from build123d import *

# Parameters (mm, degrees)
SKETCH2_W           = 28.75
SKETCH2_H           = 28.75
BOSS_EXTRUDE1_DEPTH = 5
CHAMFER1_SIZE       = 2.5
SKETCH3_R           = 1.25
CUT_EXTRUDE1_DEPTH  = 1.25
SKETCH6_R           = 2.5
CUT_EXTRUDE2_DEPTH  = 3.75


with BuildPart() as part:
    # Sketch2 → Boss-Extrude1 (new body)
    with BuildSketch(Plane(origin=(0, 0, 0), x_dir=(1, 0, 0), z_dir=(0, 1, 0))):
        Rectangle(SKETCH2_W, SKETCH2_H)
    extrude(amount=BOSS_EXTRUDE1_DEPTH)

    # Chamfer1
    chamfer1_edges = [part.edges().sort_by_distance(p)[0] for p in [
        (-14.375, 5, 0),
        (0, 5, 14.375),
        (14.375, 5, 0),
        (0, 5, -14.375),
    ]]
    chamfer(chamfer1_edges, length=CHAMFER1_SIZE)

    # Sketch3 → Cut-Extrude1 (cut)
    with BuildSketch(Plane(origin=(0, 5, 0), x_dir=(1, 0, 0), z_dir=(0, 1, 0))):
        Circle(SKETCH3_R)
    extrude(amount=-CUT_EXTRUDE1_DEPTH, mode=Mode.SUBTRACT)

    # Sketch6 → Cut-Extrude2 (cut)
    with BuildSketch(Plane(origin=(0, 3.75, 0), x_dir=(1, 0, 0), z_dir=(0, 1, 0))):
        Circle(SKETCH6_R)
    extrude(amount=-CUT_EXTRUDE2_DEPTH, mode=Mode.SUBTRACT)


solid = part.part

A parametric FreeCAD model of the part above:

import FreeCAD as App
import Part
import Sketcher

V = App.Vector


def edges_at(feature, points):
    """Names of the edges that pass closest to the given points."""
    edges = feature.Shape.Edges
    near = lambda p: min(range(len(edges)), key=lambda i: edges[i].distToShape(Part.Vertex(*p))[0])
    return sorted({f"Edge{near(p) + 1}" for p in points})


def add_polygon(sketch, points):
    """Adds a closed chain of lines whose ends are joined by coincident constraints."""
    first, n = sketch.GeometryCount, len(points)
    for a, b in zip(points, points[1:] + points[:1]):
        sketch.addGeometry(Part.LineSegment(App.Vector(*a, 0), App.Vector(*b, 0)), False)
    for i in range(n):
        sketch.addConstraint(Sketcher.Constraint("Coincident", first + i, 2, first + (i + 1) % n, 1))

doc = App.newDocument("Part")
body = doc.addObject("PartDesign::Body", "Body")

# Sketch on XZ plane
sketch1 = body.newObject("Sketcher::SketchObject", "Sketch")
sketch1.AttachmentSupport = (doc.getObject("XZ_Plane"), [""])
sketch1.MapMode = "FlatFace"
add_polygon(sketch1, [(-14, -14), (-14, 14), (14, 14), (14, -14)])  # lines 0-3
sketch1.addConstraint([
    Sketcher.Constraint("Vertical", 0),
    Sketcher.Constraint("Horizontal", 1),
    Sketcher.Constraint("Vertical", 2),
    Sketcher.Constraint("Horizontal", 3),
    Sketcher.Constraint("Symmetric", 0, 2, 2, 2, -1, 1),
    Sketcher.Constraint("Equal", 3, 0),
    Sketcher.Constraint("DistanceX", 1, 1, 1, 2, 28.75),
])
pad1 = body.newObject("PartDesign::Pad", "Pad")
pad1.Profile = sketch1
pad1.Length = 5
pad1.Reversed = True
doc.recompute()

chamfer = body.newObject("PartDesign::Chamfer", "Chamfer")
chamfer.Base = (pad1, edges_at(pad1, [
    (-14.375, 5, 0),
    (0, 5, 14.375),
    (14.375, 5, 0),
    (0, 5, -14.375),
]))
chamfer.Size = 2.5

# Sketch on XZ plane
sketch2 = body.newObject("Sketcher::SketchObject", "Sketch001")
sketch2.AttachmentSupport = (doc.getObject("XZ_Plane"), [""])
sketch2.MapMode = "FlatFace"
sketch2.AttachmentOffset = App.Placement(V(0, 0, -5), App.Rotation())
sketch2.addGeometry(Part.Circle(V(0, 0, 0), V(0, 0, 1), 1.2), False)
sketch2.addConstraint([
    Sketcher.Constraint("Coincident", 0, 3, -1, 1),
    Sketcher.Constraint("Diameter", 0, 2.5),
])
pocket1 = body.newObject("PartDesign::Pocket", "Pocket")
pocket1.Profile = sketch2
pocket1.Length = 1.25
pocket1.Reversed = True

# Sketch on XZ plane
sketch3 = body.newObject("Sketcher::SketchObject", "Sketch002")
sketch3.AttachmentSupport = (doc.getObject("XZ_Plane"), [""])
sketch3.MapMode = "FlatFace"
sketch3.AttachmentOffset = App.Placement(V(0, 0, -3.75), App.Rotation())
sketch3.addGeometry(Part.Circle(V(0, 0, 0), V(0, 0, 1), 2.5), False)
sketch3.addConstraint([
    Sketcher.Constraint("Coincident", 0, 3, -1, 1),
    Sketcher.Constraint("Diameter", 0, 5.0),
])
pocket2 = body.newObject("PartDesign::Pocket", "Pocket001")
pocket2.Profile = sketch3
pocket2.Length = 3.75
pocket2.Reversed = True

doc.recompute()
